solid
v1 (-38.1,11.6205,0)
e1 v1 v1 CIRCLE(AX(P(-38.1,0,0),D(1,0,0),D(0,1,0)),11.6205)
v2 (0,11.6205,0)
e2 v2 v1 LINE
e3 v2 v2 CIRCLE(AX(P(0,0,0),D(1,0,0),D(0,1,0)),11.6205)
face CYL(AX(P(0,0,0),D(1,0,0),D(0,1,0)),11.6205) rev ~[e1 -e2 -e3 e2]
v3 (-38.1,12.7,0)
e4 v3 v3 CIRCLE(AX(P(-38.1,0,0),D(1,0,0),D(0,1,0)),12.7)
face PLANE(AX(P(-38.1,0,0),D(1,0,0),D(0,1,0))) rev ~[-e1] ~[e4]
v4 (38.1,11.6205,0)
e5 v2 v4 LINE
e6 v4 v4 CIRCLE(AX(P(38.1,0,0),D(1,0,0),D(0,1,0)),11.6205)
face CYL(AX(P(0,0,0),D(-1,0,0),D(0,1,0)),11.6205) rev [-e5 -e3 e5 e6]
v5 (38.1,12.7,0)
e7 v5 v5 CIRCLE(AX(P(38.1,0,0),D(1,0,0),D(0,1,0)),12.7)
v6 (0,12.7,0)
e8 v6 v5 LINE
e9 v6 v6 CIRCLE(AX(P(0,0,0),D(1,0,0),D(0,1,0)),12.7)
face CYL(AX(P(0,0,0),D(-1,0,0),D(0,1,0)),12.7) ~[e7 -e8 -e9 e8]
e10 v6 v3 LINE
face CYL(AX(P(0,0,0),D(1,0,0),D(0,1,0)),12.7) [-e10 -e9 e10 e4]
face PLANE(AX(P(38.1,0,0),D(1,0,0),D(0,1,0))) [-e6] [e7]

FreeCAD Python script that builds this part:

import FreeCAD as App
import Part
import Sketcher
from FreeCAD import Vector
Q = App.Units.Quantity

doc = App.newDocument("Part")
body = doc.addObject("PartDesign::Body", "Body")

sketch1 = body.newObject("Sketcher::SketchObject", "Sketch")
sketch1.AttachmentSupport = (doc.getObject("YZ_Plane"), [""])
sketch1.MapMode = "FlatFace"
sketch1.addGeometry([
    Part.Circle(Vector(0, 0, 0), Vector(0, 0, 1), 13),
    Part.Circle(Vector(0, 0, 0), Vector(0, 0, 1), 12),
], False)
sketch1.addConstraint([
    Sketcher.Constraint("Coincident", 0, 3, -1, 1),
    Sketcher.Constraint("Coincident", 1, 3, -1, 1),
    Sketcher.Constraint("Diameter", 0, Q("1 in")),
    Sketcher.Constraint("Diameter", 1, Q("0.915 in")),
])
pad1 = body.newObject("PartDesign::Pad", "Pad")
pad1.Profile = sketch1
pad1.Length = Q("3 in")
pad1.Midplane = True

doc.recompute()
